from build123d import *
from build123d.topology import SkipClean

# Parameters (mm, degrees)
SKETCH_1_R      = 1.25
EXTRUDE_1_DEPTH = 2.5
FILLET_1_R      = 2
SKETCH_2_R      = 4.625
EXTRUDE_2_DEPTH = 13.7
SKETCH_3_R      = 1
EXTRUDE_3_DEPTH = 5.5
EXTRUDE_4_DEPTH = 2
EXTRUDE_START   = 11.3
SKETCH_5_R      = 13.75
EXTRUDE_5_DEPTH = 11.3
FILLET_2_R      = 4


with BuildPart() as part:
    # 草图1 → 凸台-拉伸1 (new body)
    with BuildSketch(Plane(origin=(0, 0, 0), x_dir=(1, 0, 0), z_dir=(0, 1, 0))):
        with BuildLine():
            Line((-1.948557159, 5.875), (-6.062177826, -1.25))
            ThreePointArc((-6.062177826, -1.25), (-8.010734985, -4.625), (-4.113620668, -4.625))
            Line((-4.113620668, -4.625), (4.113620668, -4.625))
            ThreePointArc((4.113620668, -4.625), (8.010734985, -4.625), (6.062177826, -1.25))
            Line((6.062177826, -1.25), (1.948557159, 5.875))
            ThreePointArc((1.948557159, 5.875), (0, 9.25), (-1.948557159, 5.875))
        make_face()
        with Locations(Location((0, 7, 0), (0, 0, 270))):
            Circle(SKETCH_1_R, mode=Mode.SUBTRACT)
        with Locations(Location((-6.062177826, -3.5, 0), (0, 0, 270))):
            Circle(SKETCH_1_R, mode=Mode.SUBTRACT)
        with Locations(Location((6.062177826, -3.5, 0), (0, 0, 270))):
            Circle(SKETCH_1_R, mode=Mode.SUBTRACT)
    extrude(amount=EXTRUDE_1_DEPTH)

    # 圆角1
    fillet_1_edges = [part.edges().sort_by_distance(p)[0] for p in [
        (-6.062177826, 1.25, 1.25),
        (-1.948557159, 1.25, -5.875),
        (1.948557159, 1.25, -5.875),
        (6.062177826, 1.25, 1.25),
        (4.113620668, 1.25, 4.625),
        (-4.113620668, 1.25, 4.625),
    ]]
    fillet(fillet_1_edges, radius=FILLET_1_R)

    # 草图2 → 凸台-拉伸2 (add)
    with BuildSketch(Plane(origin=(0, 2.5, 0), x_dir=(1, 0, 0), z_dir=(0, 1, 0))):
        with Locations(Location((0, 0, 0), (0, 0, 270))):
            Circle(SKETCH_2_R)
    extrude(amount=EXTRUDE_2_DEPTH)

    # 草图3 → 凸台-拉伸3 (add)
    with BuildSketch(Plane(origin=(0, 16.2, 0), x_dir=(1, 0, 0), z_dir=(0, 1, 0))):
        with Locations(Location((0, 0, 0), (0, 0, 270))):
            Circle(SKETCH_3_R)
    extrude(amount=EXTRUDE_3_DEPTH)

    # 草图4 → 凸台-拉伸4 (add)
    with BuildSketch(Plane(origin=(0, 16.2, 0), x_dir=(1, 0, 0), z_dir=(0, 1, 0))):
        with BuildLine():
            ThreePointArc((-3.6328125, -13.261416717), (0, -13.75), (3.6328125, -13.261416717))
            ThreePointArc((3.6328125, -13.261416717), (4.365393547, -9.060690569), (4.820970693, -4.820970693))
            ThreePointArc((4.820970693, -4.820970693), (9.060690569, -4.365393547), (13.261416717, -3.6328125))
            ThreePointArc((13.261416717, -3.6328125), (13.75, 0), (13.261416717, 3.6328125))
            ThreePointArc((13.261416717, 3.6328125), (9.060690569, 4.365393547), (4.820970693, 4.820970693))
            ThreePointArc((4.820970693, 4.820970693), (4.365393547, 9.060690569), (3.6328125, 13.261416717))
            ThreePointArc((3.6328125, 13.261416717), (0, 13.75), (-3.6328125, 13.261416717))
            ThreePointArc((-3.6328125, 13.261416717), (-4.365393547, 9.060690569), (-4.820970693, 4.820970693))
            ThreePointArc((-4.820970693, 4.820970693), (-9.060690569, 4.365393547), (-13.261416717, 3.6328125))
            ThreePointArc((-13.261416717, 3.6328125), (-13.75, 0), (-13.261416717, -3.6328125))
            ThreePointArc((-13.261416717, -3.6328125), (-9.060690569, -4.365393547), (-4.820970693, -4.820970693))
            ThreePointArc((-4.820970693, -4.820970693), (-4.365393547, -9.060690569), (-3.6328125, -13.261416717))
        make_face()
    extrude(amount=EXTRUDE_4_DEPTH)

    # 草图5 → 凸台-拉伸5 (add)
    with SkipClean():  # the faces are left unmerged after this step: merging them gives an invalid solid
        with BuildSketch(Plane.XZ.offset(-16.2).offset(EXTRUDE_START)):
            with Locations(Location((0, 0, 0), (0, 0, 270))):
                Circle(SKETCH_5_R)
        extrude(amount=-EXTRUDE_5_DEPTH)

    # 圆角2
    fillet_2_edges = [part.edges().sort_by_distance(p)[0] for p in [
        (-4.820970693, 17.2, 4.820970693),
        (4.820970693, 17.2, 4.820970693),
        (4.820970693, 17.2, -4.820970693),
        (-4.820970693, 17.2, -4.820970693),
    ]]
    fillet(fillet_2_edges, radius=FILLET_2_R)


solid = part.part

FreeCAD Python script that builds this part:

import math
import FreeCAD as App
import Part
import Sketcher

V = App.Vector
Q = App.Units.Quantity


def edges_at(feature, points):
    """Names of the edges that pass closest to the given points."""
    edges = feature.Shape.Edges
    near = lambda p: min(range(len(edges)), key=lambda i: edges[i].distToShape(Part.Vertex(*p))[0])
    return sorted({f"Edge{near(p) + 1}" for p in points})

doc = App.newDocument("Part")
body = doc.addObject("PartDesign::Body", "Body")

sketch1 = body.newObject("Sketcher::SketchObject", "Sketch")
sketch1.AttachmentSupport = (doc.getObject("XZ_Plane"), [""])
sketch1.MapMode = "FlatFace"
sketch1.addGeometry(Part.LineSegment(V(-1.9, -5.9, 0), V(-6.1, 1.2, 0)), False)
sketch1.addGeometry(Part.ArcOfCircle(Part.Circle(V(-6.1, 3.5, 0), V(0, 0, 1), 2.2), math.radians(30), math.radians(270)), False)
sketch1.addGeometry(Part.LineSegment(V(-4.1, 4.6, 0), V(4.1, 4.6, 0)), False)
sketch1.addGeometry(Part.ArcOfCircle(Part.Circle(V(6.1, 3.5, 0), V(0, 0, 1), 2.2), math.radians(-90), math.radians(150)), False)
sketch1.addGeometry(Part.LineSegment(V(6.1, 1.2, 0), V(1.9, -5.9, 0)), False)
sketch1.addGeometry(Part.ArcOfCircle(Part.Circle(V(0, -7, 0), V(0, 0, 1), 2.2), math.radians(150), math.radians(390)), False)
sketch1.addGeometry(Part.Circle(V(-6.1, 3.5, 0), V(0, 0, 1), 1.2), False)
sketch1.addGeometry(Part.Circle(V(6.1, 3.5, 0), V(0, 0, 1), 1.2), False)
sketch1.addGeometry(Part.Circle(V(0, -7, 0), V(0, 0, 1), 1.2), False)
sketch1.addConstraint(Sketcher.Constraint("Coincident", 0, 2, 1, 2))
sketch1.addConstraint(Sketcher.Constraint("Coincident", 1, 1, 2, 1))
sketch1.addConstraint(Sketcher.Constraint("Coincident", 2, 2, 3, 2))
sketch1.addConstraint(Sketcher.Constraint("Coincident", 3, 1, 4, 1))
sketch1.addConstraint(Sketcher.Constraint("Coincident", 4, 2, 5, 2))
sketch1.addConstraint(Sketcher.Constraint("Coincident", 5, 1, 0, 1))
sketch1.addConstraint(Sketcher.Constraint("Horizontal", 2))
sketch1.addConstraint(Sketcher.Constraint("Coincident", 6, 3, 1, 3))
sketch1.addConstraint(Sketcher.Constraint("Coincident", 7, 3, 3, 3))
sketch1.addConstraint(Sketcher.Constraint("Coincident", 8, 3, 5, 3))
sketch1.addConstraint(Sketcher.Constraint("Equal", 1, 3))
sketch1.addConstraint(Sketcher.Constraint("Equal", 3, 5))
sketch1.addConstraint(Sketcher.Constraint("Equal", 6, 7))
sketch1.addConstraint(Sketcher.Constraint("Equal", 7, 8))
sketch1.addConstraint(Sketcher.Constraint("Symmetric", 1, 3, 3, 3, -2))
sketch1.addConstraint(Sketcher.Constraint("Symmetric", 4, 2, 5, 1, -2))
sketch1.addConstraint(Sketcher.Constraint("Vertical", 6, 3, 0, 2))
sketch1.addConstraint(Sketcher.Constraint("Vertical", 7, 3, 3, 1))
sketch1.addConstraint(Sketcher.Constraint("Diameter", 6, Q("2.5 mm")))
sketch1.addConstraint(Sketcher.Constraint("Angle", 0, Q("120 deg")))
sketch1.addConstraint(Sketcher.Constraint("Radius", 1, Q("2.25 mm")))
sketch1.addConstraint(Sketcher.Constraint("DistanceY", 5, 3, -1, 1, Q("7 mm")))
sketch1.addConstraint(Sketcher.Constraint("DistanceY", -1, 1, 1, 3, Q("3.5 mm")))
sketch1.addConstraint(Sketcher.Constraint("DistanceY", -1, 1, 1, 1, Q("4.625 mm")))
sketch1.addConstraint(Sketcher.Constraint("DistanceY", 4, 2, -1, 1, Q("5.875 mm")))
pad1 = body.newObject("PartDesign::Pad", "Pad")
pad1.Profile = sketch1
pad1.Length = 2.5
pad1.Reversed = True
doc.recompute()

fillet = body.newObject("PartDesign::Fillet", "Fillet")
fillet.Base = (pad1, edges_at(pad1, [
    (-6.062, 1.25, 1.25),
    (-1.949, 1.25, -5.875),
    (1.949, 1.25, -5.875),
    (6.062, 1.25, 1.25),
    (4.114, 1.25, 4.625),
    (-4.114, 1.25, 4.625),
]))
fillet.Radius = 2

sketch2 = body.newObject("Sketcher::SketchObject", "Sketch001")
sketch2.AttachmentSupport = (doc.getObject("XZ_Plane"), [""])
sketch2.MapMode = "FlatFace"
sketch2.AttachmentOffset = App.Placement(V(0, 0, -2.5), App.Rotation())
sketch2.addGeometry(Part.Circle(V(0, 0, 0), V(0, 0, 1), 4.6), False)
sketch2.addConstraint(Sketcher.Constraint("Coincident", 0, 3, -1, 1))
sketch2.addConstraint(Sketcher.Constraint("Diameter", 0, Q("9.25 mm")))
pad2 = body.newObject("PartDesign::Pad", "Pad001")
pad2.Profile = sketch2
pad2.Length = 13.7
pad2.Reversed = True

sketch3 = body.newObject("Sketcher::SketchObject", "Sketch002")
sketch3.AttachmentSupport = (doc.getObject("XZ_Plane"), [""])
sketch3.MapMode = "FlatFace"
sketch3.AttachmentOffset = App.Placement(V(0, 0, -16.2), App.Rotation())
sketch3.addGeometry(Part.Circle(V(0, 0, 0), V(0, 0, 1), 1), False)
sketch3.addConstraint(Sketcher.Constraint("Coincident", 0, 3, -1, 1))
sketch3.addConstraint(Sketcher.Constraint("Diameter", 0, Q("2 mm")))
pad3 = body.newObject("PartDesign::Pad", "Pad002")
pad3.Profile = sketch3
pad3.Length = 5.5
pad3.Reversed = True

sketch4 = body.newObject("Sketcher::SketchObject", "Sketch003")
sketch4.AttachmentSupport = (doc.getObject("XZ_Plane"), [""])
sketch4.MapMode = "FlatFace"
sketch4.AttachmentOffset = App.Placement(V(0, 0, -16.2), App.Rotation())
sketch4.addGeometry(Part.ArcOfCircle(Part.Circle(V(0, 0, 0), V(0, 0, 1), 14), math.radians(75), math.radians(105)), False)
sketch4.addGeometry(Part.ArcOfCircle(Part.Circle(V(-60, 0, 0), V(0, 0, 1), 65), math.radians(4.25), math.radians(11.77)), False)
sketch4.addGeometry(Part.ArcOfCircle(Part.Circle(V(0, -60, 0), V(0, 0, 1), 65), math.radians(78.23), math.radians(85.75)), False)
sketch4.addGeometry(Part.ArcOfCircle(Part.Circle(V(0, 0, 0), V(0, 0, 1), 14), math.radians(-15), math.radians(15)), False)
sketch4.addGeometry(Part.ArcOfCircle(Part.Circle(V(0, 60, 0), V(0, 0, 1), 65), math.radians(-85.75), math.radians(-78.23)), False)
sketch4.addGeometry(Part.ArcOfCircle(Part.Circle(V(-60, 0, 0), V(0, 0, 1), 65), math.radians(-11.77), math.radians(-4.25)), False)
sketch4.addGeometry(Part.ArcOfCircle(Part.Circle(V(0, 0, 0), V(0, 0, 1), 14), math.radians(-105), math.radians(-75)), False)
sketch4.addGeometry(Part.ArcOfCircle(Part.Circle(V(60, 0, 0), V(0, 0, 1), 65), math.radians(-175.75), math.radians(-168.23)), False)
sketch4.addGeometry(Part.ArcOfCircle(Part.Circle(V(0, 60, 0), V(0, 0, 1), 65), math.radians(-101.77), math.radians(-94.25)), False)
sketch4.addGeometry(Part.ArcOfCircle(Part.Circle(V(0, 0, 0), V(0, 0, 1), 14), math.radians(165), math.radians(195)), False)
sketch4.addGeometry(Part.ArcOfCircle(Part.Circle(V(0, -60, 0), V(0, 0, 1), 65), math.radians(94.25), math.radians(101.77)), False)
sketch4.addGeometry(Part.ArcOfCircle(Part.Circle(V(60, 0, 0), V(0, 0, 1), 65), math.radians(168.23), math.radians(175.75)), False)
sketch4.addConstraint(Sketcher.Constraint("Coincident", 0, 1, 1, 2))
sketch4.addConstraint(Sketcher.Constraint("Coincident", 1, 1, 2, 2))
sketch4.addConstraint(Sketcher.Constraint("Coincident", 2, 1, 3, 2))
sketch4.addConstraint(Sketcher.Constraint("Coincident", 3, 1, 4, 2))
sketch4.addConstraint(Sketcher.Constraint("Coincident", 4, 1, 5, 2))
sketch4.addConstraint(Sketcher.Constraint("Coincident", 5, 1, 6, 2))
sketch4.addConstraint(Sketcher.Constraint("Coincident", 6, 1, 7, 2))
sketch4.addConstraint(Sketcher.Constraint("Coincident", 7, 1, 8, 2))
sketch4.addConstraint(Sketcher.Constraint("Coincident", 8, 1, 9, 2))
sketch4.addConstraint(Sketcher.Constraint("Coincident", 9, 1, 10, 2))
sketch4.addConstraint(Sketcher.Constraint("Coincident", 10, 1, 11, 2))
sketch4.addConstraint(Sketcher.Constraint("Coincident", 11, 1, 0, 2))
sketch4.addConstraint(Sketcher.Constraint("Coincident", 0, 3, -1, 1))
sketch4.addConstraint(Sketcher.Constraint("Coincident", 3, 3, -1, 1))
sketch4.addConstraint(Sketcher.Constraint("Coincident", 6, 3, -1, 1))
sketch4.addConstraint(Sketcher.Constraint("Coincident", 9, 3, -1, 1))
sketch4.addConstraint(Sketcher.Constraint("Coincident", 5, 3, 1, 3))
sketch4.addConstraint(Sketcher.Constraint("Coincident", 8, 3, 4, 3))
sketch4.addConstraint(Sketcher.Constraint("Coincident", 10, 3, 2, 3))
sketch4.addConstraint(Sketcher.Constraint("Coincident", 11, 3, 7, 3))
sketch4.addConstraint(Sketcher.Constraint("Equal", 1, 2))
sketch4.addConstraint(Sketcher.Constraint("Equal", 0, 3))
sketch4.addConstraint(Sketcher.Constraint("Equal", 2, 4))
sketch4.addConstraint(Sketcher.Constraint("Equal", 4, 5))
sketch4.addConstraint(Sketcher.Constraint("Equal", 3, 6))
sketch4.addConstraint(Sketcher.Constraint("Equal", 5, 7))
sketch4.addConstraint(Sketcher.Constraint("Equal", 7, 8))
sketch4.addConstraint(Sketcher.Constraint("Equal", 6, 9))
sketch4.addConstraint(Sketcher.Constraint("Equal", 8, 10))
sketch4.addConstraint(Sketcher.Constraint("Equal", 10, 11))
sketch4.addConstraint(Sketcher.Constraint("Symmetric", 2, 3, 4, 3, -1, 1))
sketch4.addConstraint(Sketcher.Constraint("Symmetric", 1, 3, 7, 3, -1, 1))
sketch4.addConstraint(Sketcher.Constraint("PointOnObject", 1, 3, -1))
sketch4.addConstraint(Sketcher.Constraint("PointOnObject", 2, 3, -2))
sketch4.addConstraint(Sketcher.Constraint("Radius", 1, Q("65 mm")))
sketch4.addConstraint(Sketcher.Constraint("Radius", 0, Q("13.75 mm")))
sketch4.addConstraint(Sketcher.Constraint("DistanceX", 1, 3, -1, 1, Q("60 mm")))
sketch4.addConstraint(Sketcher.Constraint("DistanceY", 2, 3, -1, 1, Q("60 mm")))
pad4 = body.newObject("PartDesign::Pad", "Pad003")
pad4.Profile = sketch4
pad4.Length = 2
pad4.Reversed = True

sketch5 = body.newObject("Sketcher::SketchObject", "Sketch004")
sketch5.AttachmentSupport = (doc.getObject("XZ_Plane"), [""])
sketch5.MapMode = "FlatFace"
sketch5.AttachmentOffset = App.Placement(V(0, 0, -4.9), App.Rotation())
sketch5.addGeometry(Part.Circle(V(0, 0, 0), V(0, 0, 1), 14), False)
sketch5.addConstraint(Sketcher.Constraint("Coincident", 0, 3, -1, 1))
sketch5.addConstraint(Sketcher.Constraint("Diameter", 0, Q("27.5 mm")))
pad5 = body.newObject("PartDesign::Pad", "Pad004")
pad5.Profile = sketch5
pad5.Length = 11.3
pad5.Reversed = True
doc.recompute()

fillet2 = body.newObject("PartDesign::Fillet", "Fillet001")
fillet2.Base = (pad5, edges_at(pad5, [
    (-4.821, 17.2, 4.821),
    (4.821, 17.2, 4.821),
    (4.821, 17.2, -4.821),
    (-4.821, 17.2, -4.821),
]))
fillet2.Radius = 4

doc.recompute()
